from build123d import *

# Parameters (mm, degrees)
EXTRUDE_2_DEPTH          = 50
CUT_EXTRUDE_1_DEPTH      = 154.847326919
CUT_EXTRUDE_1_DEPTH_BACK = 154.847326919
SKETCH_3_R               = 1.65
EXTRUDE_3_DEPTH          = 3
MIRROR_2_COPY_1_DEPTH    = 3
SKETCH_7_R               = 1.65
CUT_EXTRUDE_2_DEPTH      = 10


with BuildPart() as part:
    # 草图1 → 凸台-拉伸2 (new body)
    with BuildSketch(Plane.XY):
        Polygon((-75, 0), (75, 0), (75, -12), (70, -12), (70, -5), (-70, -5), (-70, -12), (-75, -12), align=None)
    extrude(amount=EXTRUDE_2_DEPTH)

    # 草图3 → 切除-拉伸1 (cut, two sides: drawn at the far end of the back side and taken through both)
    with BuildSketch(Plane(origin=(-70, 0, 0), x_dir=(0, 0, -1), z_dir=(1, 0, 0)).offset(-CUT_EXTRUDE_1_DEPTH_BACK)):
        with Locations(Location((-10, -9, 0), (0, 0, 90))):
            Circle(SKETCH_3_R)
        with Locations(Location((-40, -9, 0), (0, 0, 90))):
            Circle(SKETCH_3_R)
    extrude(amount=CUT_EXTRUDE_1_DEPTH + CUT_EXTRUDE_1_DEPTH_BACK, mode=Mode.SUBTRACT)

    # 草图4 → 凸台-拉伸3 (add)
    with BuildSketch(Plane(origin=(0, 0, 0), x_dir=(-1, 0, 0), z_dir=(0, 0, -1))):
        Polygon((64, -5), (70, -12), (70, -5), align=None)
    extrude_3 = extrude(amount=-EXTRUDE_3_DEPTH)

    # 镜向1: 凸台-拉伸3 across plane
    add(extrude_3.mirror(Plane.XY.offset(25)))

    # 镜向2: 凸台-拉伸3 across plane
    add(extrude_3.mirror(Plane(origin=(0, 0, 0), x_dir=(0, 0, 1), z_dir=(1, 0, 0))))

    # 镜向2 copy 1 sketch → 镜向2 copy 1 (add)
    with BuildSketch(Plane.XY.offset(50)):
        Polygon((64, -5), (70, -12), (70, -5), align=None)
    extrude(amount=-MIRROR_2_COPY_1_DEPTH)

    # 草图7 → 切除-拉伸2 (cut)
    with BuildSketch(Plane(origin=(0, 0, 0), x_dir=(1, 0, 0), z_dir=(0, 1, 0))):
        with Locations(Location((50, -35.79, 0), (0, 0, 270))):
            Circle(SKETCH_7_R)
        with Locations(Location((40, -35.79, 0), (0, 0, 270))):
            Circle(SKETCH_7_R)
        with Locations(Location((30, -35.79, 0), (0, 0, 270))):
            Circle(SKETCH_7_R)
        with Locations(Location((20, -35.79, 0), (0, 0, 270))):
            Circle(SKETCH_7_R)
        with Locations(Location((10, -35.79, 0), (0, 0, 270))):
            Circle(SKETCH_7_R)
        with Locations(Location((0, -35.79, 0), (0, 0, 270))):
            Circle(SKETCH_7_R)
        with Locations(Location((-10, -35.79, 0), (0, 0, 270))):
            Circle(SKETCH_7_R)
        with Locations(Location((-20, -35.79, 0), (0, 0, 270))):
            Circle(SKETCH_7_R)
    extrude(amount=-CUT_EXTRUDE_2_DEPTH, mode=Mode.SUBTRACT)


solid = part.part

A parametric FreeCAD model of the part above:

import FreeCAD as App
import Part
import Sketcher
Q = App.Units.Quantity


def add_polygon(sketch, points):
    """Adds a closed chain of lines whose ends are joined by coincident constraints."""
    first, n = sketch.GeometryCount, len(points)
    for a, b in zip(points, points[1:] + points[:1]):
        sketch.addGeometry(Part.LineSegment(App.Vector(*a, 0), App.Vector(*b, 0)), False)
    for i in range(n):
        sketch.addConstraint(Sketcher.Constraint("Coincident", first + i, 2, first + (i + 1) % n, 1))

doc = App.newDocument("Part")
params = doc.addObject("Spreadsheet::Sheet", "Params")
for row, (alias, value) in enumerate([
    ("sketch1_width", "150 mm"),
    ("sketch1_width2", "5 mm"),
    ("sketch1_height", "12 mm"),
    ("sketch1_height2", "7 mm"),
    ("pad1_length", "50 mm"),
    ("sketch2_diameter", "3.3 mm"),
    ("sketch3_width", "6 mm"),
    ("sketch3_height", "7 mm"),
    ("pad2_length", "3 mm"),
    ("sketch4_width", "6 mm"),
    ("sketch4_height", "7 mm"),
    ("pad3_length", "3 mm"),
    ("sketch5_diameter", "3.3 mm"),
    ("pocket2_length", "10 mm"),
], start=1):
    params.set(f"A{row}", alias)
    params.set(f"B{row}", "=" + value)
    params.setAlias(f"B{row}", alias)

body = doc.addObject("PartDesign::Body", "Body")

sketch1 = body.newObject("Sketcher::SketchObject", "Sketch")
sketch1.AttachmentSupport = (doc.getObject("XY_Plane"), [""])
sketch1.MapMode = "FlatFace"
add_polygon(sketch1, [(75, 0), (-75, 0), (-75, -12), (-70, -12), (-70, -5), (70, -5), (70, -12), (75, -12)])
sketch1.addConstraint([
    Sketcher.Constraint("Horizontal", 0),
    Sketcher.Constraint("Vertical", 1),
    Sketcher.Constraint("Horizontal", 2),
    Sketcher.Constraint("Vertical", 3),
    Sketcher.Constraint("Horizontal", 4),
    Sketcher.Constraint("Vertical", 5),
    Sketcher.Constraint("Horizontal", 6),
    Sketcher.Constraint("Vertical", 7),
    Sketcher.Constraint("Symmetric", 0, 2, 7, 2, -1, 1),
    Sketcher.Constraint("Symmetric", 2, 2, 5, 2, -2),
    Sketcher.Constraint("DistanceX", 0, 2, 0, 1, Q("150 mm")),
    Sketcher.Constraint("DistanceX", 2, 1, 2, 2, Q("5 mm")),
    Sketcher.Constraint("DistanceY", 1, 2, 1, 1, Q("12 mm")),
    Sketcher.Constraint("DistanceY", 3, 1, 3, 2, Q("7 mm")),
])
sketch1.setExpression("Constraints[18]", "Params.sketch1_width")
sketch1.setExpression("Constraints[19]", "Params.sketch1_width2")
sketch1.setExpression("Constraints[20]", "Params.sketch1_height")
sketch1.setExpression("Constraints[21]", "Params.sketch1_height2")
pad1 = body.newObject("PartDesign::Pad", "Pad")
pad1.Profile = sketch1
pad1.setExpression("Length", "Params.pad1_length")

sketch2 = body.newObject("Sketcher::SketchObject", "Sketch001")
sketch2.AttachmentSupport = (doc.getObject("YZ_Plane"), [""])
sketch2.MapMode = "FlatFace"
sketch2.AttachmentOffset = App.Placement(App.Vector(0, 0, -70), App.Rotation())
sketch2.addGeometry([
    Part.Circle(App.Vector(-9, 10, 0), App.Vector(0, 0, 1), 1.6),
    Part.Circle(App.Vector(-9, 40, 0), App.Vector(0, 0, 1), 1.6),
], False)
sketch2.addConstraint([
    Sketcher.Constraint("Equal", 0, 1),
    Sketcher.Constraint("Vertical", 0, 3, 1, 3),
    Sketcher.Constraint("Diameter", 0, Q("3.3 mm")),
    Sketcher.Constraint("DistanceX", 0, 3, -1, 1, Q("9 mm")),
    Sketcher.Constraint("DistanceY", -1, 1, 0, 3, Q("10 mm")),
    Sketcher.Constraint("DistanceY", -1, 1, 1, 3, Q("40 mm")),
])
sketch2.setExpression("Constraints[2]", "Params.sketch2_diameter")
pocket1 = body.newObject("PartDesign::Pocket", "Pocket")
pocket1.Profile = sketch2
pocket1.Type = "ThroughAll"
pocket1.Midplane = True

sketch3 = body.newObject("Sketcher::SketchObject", "Sketch002")
sketch3.AttachmentSupport = (doc.getObject("XY_Plane"), [""])
sketch3.MapMode = "FlatFace"
add_polygon(sketch3, [(-64, -5), (-70, -12), (-70, -5)])
sketch3.addConstraint([
    Sketcher.Constraint("Vertical", 1),
    Sketcher.Constraint("Horizontal", 2),
    Sketcher.Constraint("DistanceX", 2, 1, 2, 2, Q("6 mm")),
    Sketcher.Constraint("DistanceY", 1, 1, 1, 2, Q("7 mm")),
    Sketcher.Constraint("DistanceX", 0, 2, -1, 1, Q("70 mm")),
    Sketcher.Constraint("DistanceY", 0, 2, -1, 1, Q("12 mm")),
])
sketch3.setExpression("Constraints[5]", "Params.sketch3_width")
sketch3.setExpression("Constraints[6]", "Params.sketch3_height")
pad2 = body.newObject("PartDesign::Pad", "Pad001")
pad2.Profile = sketch3
pad2.setExpression("Length", "Params.pad2_length")
doc.recompute()

datumplane = body.newObject("PartDesign::Plane", "DatumPlane")
datumplane.AttachmentSupport = (doc.getObject("XY_Plane"), [""])
datumplane.MapMode = "FlatFace"
datumplane.AttachmentOffset = App.Placement(App.Vector(0, 0, 25), App.Rotation())
mirrored = body.newObject("PartDesign::Mirrored", "Mirrored")
mirrored.Originals = [pad2]
mirrored.MirrorPlane = (datumplane, [""])
body.Tip = mirrored
doc.recompute()

mirrored2 = body.newObject("PartDesign::Mirrored", "Mirrored001")
mirrored2.Originals = [pad2]
mirrored2.MirrorPlane = (doc.getObject("YZ_Plane"), [""])
body.Tip = mirrored2

sketch4 = body.newObject("Sketcher::SketchObject", "Sketch003")
sketch4.AttachmentSupport = (doc.getObject("XY_Plane"), [""])
sketch4.MapMode = "FlatFace"
sketch4.AttachmentOffset = App.Placement(App.Vector(0, 0, 50), App.Rotation())
add_polygon(sketch4, [(64, -5), (70, -12), (70, -5)])
sketch4.addConstraint([
    Sketcher.Constraint("Vertical", 1),
    Sketcher.Constraint("Horizontal", 2),
    Sketcher.Constraint("DistanceX", 2, 2, 2, 1, Q("6 mm")),
    Sketcher.Constraint("DistanceY", 1, 1, 1, 2, Q("7 mm")),
    Sketcher.Constraint("DistanceX", -1, 1, 0, 2, Q("70 mm")),
    Sketcher.Constraint("DistanceY", 0, 2, -1, 1, Q("12 mm")),
])
sketch4.setExpression("Constraints[5]", "Params.sketch4_width")
sketch4.setExpression("Constraints[6]", "Params.sketch4_height")
pad3 = body.newObject("PartDesign::Pad", "Pad002")
pad3.Profile = sketch4
pad3.setExpression("Length", "Params.pad3_length")
pad3.Reversed = True

sketch5 = body.newObject("Sketcher::SketchObject", "Sketch004")
sketch5.AttachmentSupport = (doc.getObject("XZ_Plane"), [""])
sketch5.MapMode = "FlatFace"
sketch5.addGeometry([
    Part.Circle(App.Vector(50, 35.8, 0), App.Vector(0, 0, 1), 1.6),
    Part.Circle(App.Vector(40, 35.8, 0), App.Vector(0, 0, 1), 1.6),
    Part.Circle(App.Vector(30, 35.8, 0), App.Vector(0, 0, 1), 1.6),
    Part.Circle(App.Vector(20, 35.8, 0), App.Vector(0, 0, 1), 1.6),
    Part.Circle(App.Vector(10, 35.8, 0), App.Vector(0, 0, 1), 1.6),
    Part.Circle(App.Vector(0, 35.8, 0), App.Vector(0, 0, 1), 1.6),
    Part.Circle(App.Vector(-10, 35.8, 0), App.Vector(0, 0, 1), 1.6),
    Part.Circle(App.Vector(-20, 35.8, 0), App.Vector(0, 0, 1), 1.6),
], False)
sketch5.addConstraint([
    Sketcher.Constraint("Equal", 0, 1),
    Sketcher.Constraint("Equal", 1, 2),
    Sketcher.Constraint("Equal", 2, 3),
    Sketcher.Constraint("Equal", 3, 4),
    Sketcher.Constraint("Equal", 4, 5),
    Sketcher.Constraint("Equal", 5, 6),
    Sketcher.Constraint("Equal", 6, 7),
    Sketcher.Constraint("Symmetric", 4, 3, 6, 3, -2),
    Sketcher.Constraint("Symmetric", 3, 3, 7, 3, -2),
    Sketcher.Constraint("PointOnObject", 5, 3, -2),
    Sketcher.Constraint("Horizontal", 0, 3, 1, 3),
    Sketcher.Constraint("Horizontal", 1, 3, 2, 3),
    Sketcher.Constraint("Horizontal", 2, 3, 3, 3),
    Sketcher.Constraint("Horizontal", 3, 3, 4, 3),
    Sketcher.Constraint("Horizontal", 4, 3, 5, 3),
    Sketcher.Constraint("Diameter", 0, Q("3.3 mm")),
    Sketcher.Constraint("DistanceX", -1, 1, 0, 3, Q("50 mm")),
    Sketcher.Constraint("DistanceX", -1, 1, 1, 3, Q("40 mm")),
    Sketcher.Constraint("DistanceX", -1, 1, 2, 3, Q("30 mm")),
    Sketcher.Constraint("DistanceX", -1, 1, 3, 3, Q("20 mm")),
    Sketcher.Constraint("DistanceX", -1, 1, 4, 3, Q("10 mm")),
    Sketcher.Constraint("DistanceY", -1, 1, 0, 3, Q("35.79 mm")),
])
sketch5.setExpression("Constraints[15]", "Params.sketch5_diameter")
pocket2 = body.newObject("PartDesign::Pocket", "Pocket001")
pocket2.Profile = sketch5
pocket2.setExpression("Length", "Params.pocket2_length")
pocket2.Reversed = True

doc.recompute()
